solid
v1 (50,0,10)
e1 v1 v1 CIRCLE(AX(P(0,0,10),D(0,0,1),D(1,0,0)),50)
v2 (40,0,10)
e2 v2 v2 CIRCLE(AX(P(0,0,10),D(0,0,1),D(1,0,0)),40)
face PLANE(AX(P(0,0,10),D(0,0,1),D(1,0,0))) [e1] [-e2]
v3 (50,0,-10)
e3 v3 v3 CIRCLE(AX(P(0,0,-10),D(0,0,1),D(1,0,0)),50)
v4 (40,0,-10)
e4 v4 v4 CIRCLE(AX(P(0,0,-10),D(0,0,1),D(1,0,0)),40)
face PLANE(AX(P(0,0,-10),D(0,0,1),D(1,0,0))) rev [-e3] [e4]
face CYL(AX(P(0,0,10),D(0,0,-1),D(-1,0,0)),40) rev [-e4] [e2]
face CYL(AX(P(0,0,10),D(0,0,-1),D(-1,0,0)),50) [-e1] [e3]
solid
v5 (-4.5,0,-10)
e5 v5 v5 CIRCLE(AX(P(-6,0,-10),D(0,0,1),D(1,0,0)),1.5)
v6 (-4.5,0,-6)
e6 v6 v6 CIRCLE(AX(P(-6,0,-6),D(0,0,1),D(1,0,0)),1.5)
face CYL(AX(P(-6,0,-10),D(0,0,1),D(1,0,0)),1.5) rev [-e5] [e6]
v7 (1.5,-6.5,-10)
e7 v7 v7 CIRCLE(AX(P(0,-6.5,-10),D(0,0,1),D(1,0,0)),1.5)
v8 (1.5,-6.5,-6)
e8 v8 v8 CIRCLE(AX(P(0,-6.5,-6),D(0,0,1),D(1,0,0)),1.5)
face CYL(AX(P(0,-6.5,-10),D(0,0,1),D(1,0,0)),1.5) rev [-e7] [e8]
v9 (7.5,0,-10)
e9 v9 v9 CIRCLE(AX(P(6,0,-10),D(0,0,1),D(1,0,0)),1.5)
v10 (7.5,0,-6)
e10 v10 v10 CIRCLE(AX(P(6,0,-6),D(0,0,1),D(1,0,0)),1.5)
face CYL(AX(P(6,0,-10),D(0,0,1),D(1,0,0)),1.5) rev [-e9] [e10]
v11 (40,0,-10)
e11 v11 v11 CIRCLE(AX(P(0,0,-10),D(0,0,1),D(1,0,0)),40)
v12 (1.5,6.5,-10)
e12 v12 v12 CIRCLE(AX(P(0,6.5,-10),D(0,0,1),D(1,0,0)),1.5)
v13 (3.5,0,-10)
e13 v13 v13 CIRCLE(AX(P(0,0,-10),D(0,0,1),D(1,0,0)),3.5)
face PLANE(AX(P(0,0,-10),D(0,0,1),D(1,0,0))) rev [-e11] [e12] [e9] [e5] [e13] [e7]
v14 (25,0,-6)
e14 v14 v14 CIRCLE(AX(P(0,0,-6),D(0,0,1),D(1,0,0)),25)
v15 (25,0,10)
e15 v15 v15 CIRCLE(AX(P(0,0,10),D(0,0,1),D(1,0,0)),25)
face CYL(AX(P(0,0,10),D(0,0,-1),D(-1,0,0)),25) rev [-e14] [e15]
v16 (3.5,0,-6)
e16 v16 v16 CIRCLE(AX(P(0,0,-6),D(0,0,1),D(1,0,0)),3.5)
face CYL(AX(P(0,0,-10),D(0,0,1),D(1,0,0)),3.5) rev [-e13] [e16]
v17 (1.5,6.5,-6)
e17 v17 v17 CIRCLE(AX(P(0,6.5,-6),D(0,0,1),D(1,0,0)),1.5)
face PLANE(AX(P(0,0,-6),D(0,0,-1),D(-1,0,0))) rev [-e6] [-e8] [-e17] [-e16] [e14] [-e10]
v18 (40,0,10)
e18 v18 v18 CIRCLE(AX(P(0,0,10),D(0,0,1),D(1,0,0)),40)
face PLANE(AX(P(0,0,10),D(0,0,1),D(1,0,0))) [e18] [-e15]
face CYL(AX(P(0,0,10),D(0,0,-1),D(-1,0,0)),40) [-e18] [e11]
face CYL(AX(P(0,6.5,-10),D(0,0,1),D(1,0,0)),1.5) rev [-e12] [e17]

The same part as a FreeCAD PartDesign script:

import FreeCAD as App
import Part
import Sketcher
from FreeCAD import Vector
Q = App.Units.Quantity

doc = App.newDocument("Part")
body = doc.addObject("PartDesign::Body", "Body")

# Sketch on XY plane
sketch1 = body.newObject("Sketcher::SketchObject", "Sketch")
sketch1.AttachmentSupport = (doc.getObject("XY_Plane"), [""])
sketch1.MapMode = "FlatFace"
sketch1.addGeometry([
    Part.Circle(Vector(0, 0, 0), Vector(0, 0, 1), 50),
    Part.Circle(Vector(0, 0, 0), Vector(0, 0, 1), 40),
], False)
sketch1.addConstraint([
    Sketcher.Constraint("Coincident", 0, 3, -1, 1),
    Sketcher.Constraint("Coincident", 1, 3, -1, 1),
    Sketcher.Constraint("Diameter", 0, Q("100 mm")),
    Sketcher.Constraint("Diameter", 1, Q("80 mm")),
])
pad1 = body.newObject("PartDesign::Pad", "Pad")
pad1.Profile = sketch1
pad1.Length = 20
pad1.Midplane = True
body2 = doc.addObject("PartDesign::Body", "Body001")

# Sketch on XY plane
sketch2 = body2.newObject("Sketcher::SketchObject", "Sketch001")
sketch2.AttachmentSupport = (doc.getObject("XY_Plane001"), [""])
sketch2.MapMode = "FlatFace"
sketch2.addGeometry([
    Part.Circle(Vector(0, 0, 0), Vector(0, 0, 1), 40),
    Part.Circle(Vector(0, 0, 0), Vector(0, 0, 1), 37),
], False)
sketch2.addConstraint([
    Sketcher.Constraint("Coincident", 0, 3, -1, 1),
    Sketcher.Constraint("Coincident", 1, 3, -1, 1),
    Sketcher.Constraint("Diameter", 0, Q("80 mm")),
    Sketcher.Constraint("Diameter", 1, Q("74 mm")),
])
pad2 = body2.newObject("PartDesign::Pad", "Pad001")
pad2.Profile = sketch2
pad2.Length = 20
pad2.Midplane = True

# Sketch on XY plane
sketch3 = body2.newObject("Sketcher::SketchObject", "Sketch002")
sketch3.AttachmentSupport = (doc.getObject("XY_Plane001"), [""])
sketch3.MapMode = "FlatFace"
sketch3.AttachmentOffset = App.Placement(Vector(0, 0, -10), App.Rotation())
sketch3.addGeometry(Part.Circle(Vector(0, 0, 0), Vector(0, 0, 1), 37), False)
sketch3.addConstraint([
    Sketcher.Constraint("Coincident", 0, 3, -1, 1),
    Sketcher.Constraint("Diameter", 0, Q("74 mm")),
])
pad3 = body2.newObject("PartDesign::Pad", "Pad002")
pad3.Profile = sketch3
pad3.Length = 4

# Sketch on XY plane
sketch4 = body2.newObject("Sketcher::SketchObject", "Sketch003")
sketch4.AttachmentSupport = (doc.getObject("XY_Plane001"), [""])
sketch4.MapMode = "FlatFace"
sketch4.AttachmentOffset = App.Placement(Vector(0, 0, -6), App.Rotation())
sketch4.addGeometry([
    Part.Circle(Vector(0, 0, 0), Vector(0, 0, 1), 3.5),  # 0
    Part.Circle(Vector(0, 6.5, 0), Vector(0, 0, 1), 1.5),  # 1
    Part.Circle(Vector(-6, 0, 0), Vector(0, 0, 1), 1.5),  # 2
    Part.Circle(Vector(6, 0, 0), Vector(0, 0, 1), 1.5),  # 3
    Part.Circle(Vector(0, -6.5, 0), Vector(0, 0, 1), 1.5),  # 4
], False)
sketch4.addConstraint([
    Sketcher.Constraint("Coincident", 0, 3, -1, 1),
    Sketcher.Constraint("Equal", 1, 2),
    Sketcher.Constraint("Equal", 2, 3),
    Sketcher.Constraint("Equal", 3, 4),
    Sketcher.Constraint("Symmetric", 2, 3, 3, 3, -1, 1),
    Sketcher.Constraint("Symmetric", 1, 3, 4, 3, -1, 1),
    Sketcher.Constraint("PointOnObject", 1, 3, -2),
    Sketcher.Constraint("PointOnObject", 2, 3, -1),
    Sketcher.Constraint("Diameter", 0, Q("7 mm")),
    Sketcher.Constraint("Diameter", 1, Q("3 mm")),
    Sketcher.Constraint("DistanceX", 2, 3, -1, 1, Q("6 mm")),
    Sketcher.Constraint("DistanceY", 4, 3, 1, 3, Q("13 mm")),
])
pocket1 = body2.newObject("PartDesign::Pocket", "Pocket")
pocket1.Profile = sketch4
pocket1.Type = "ThroughAll"

# Sketch on XY plane
sketch5 = body2.newObject("Sketcher::SketchObject", "Sketch004")
sketch5.AttachmentSupport = (doc.getObject("XY_Plane001"), [""])
sketch5.MapMode = "FlatFace"
sketch5.AttachmentOffset = App.Placement(Vector(0, 0, -6), App.Rotation())
sketch5.addGeometry([
    Part.Circle(Vector(0, 0, 0), Vector(0, 0, 1), 37),
    Part.Circle(Vector(0, 0, 0), Vector(0, 0, 1), 25),
], False)
sketch5.addConstraint([
    Sketcher.Constraint("Coincident", 0, 3, -1, 1),
    Sketcher.Constraint("Coincident", 1, 3, -1, 1),
    Sketcher.Constraint("Diameter", 0, Q("74 mm")),
    Sketcher.Constraint("Diameter", 1, Q("50 mm")),
])
pad4 = body2.newObject("PartDesign::Pad", "Pad003")
pad4.Profile = sketch5
pad4.Length = 16

doc.recompute()
